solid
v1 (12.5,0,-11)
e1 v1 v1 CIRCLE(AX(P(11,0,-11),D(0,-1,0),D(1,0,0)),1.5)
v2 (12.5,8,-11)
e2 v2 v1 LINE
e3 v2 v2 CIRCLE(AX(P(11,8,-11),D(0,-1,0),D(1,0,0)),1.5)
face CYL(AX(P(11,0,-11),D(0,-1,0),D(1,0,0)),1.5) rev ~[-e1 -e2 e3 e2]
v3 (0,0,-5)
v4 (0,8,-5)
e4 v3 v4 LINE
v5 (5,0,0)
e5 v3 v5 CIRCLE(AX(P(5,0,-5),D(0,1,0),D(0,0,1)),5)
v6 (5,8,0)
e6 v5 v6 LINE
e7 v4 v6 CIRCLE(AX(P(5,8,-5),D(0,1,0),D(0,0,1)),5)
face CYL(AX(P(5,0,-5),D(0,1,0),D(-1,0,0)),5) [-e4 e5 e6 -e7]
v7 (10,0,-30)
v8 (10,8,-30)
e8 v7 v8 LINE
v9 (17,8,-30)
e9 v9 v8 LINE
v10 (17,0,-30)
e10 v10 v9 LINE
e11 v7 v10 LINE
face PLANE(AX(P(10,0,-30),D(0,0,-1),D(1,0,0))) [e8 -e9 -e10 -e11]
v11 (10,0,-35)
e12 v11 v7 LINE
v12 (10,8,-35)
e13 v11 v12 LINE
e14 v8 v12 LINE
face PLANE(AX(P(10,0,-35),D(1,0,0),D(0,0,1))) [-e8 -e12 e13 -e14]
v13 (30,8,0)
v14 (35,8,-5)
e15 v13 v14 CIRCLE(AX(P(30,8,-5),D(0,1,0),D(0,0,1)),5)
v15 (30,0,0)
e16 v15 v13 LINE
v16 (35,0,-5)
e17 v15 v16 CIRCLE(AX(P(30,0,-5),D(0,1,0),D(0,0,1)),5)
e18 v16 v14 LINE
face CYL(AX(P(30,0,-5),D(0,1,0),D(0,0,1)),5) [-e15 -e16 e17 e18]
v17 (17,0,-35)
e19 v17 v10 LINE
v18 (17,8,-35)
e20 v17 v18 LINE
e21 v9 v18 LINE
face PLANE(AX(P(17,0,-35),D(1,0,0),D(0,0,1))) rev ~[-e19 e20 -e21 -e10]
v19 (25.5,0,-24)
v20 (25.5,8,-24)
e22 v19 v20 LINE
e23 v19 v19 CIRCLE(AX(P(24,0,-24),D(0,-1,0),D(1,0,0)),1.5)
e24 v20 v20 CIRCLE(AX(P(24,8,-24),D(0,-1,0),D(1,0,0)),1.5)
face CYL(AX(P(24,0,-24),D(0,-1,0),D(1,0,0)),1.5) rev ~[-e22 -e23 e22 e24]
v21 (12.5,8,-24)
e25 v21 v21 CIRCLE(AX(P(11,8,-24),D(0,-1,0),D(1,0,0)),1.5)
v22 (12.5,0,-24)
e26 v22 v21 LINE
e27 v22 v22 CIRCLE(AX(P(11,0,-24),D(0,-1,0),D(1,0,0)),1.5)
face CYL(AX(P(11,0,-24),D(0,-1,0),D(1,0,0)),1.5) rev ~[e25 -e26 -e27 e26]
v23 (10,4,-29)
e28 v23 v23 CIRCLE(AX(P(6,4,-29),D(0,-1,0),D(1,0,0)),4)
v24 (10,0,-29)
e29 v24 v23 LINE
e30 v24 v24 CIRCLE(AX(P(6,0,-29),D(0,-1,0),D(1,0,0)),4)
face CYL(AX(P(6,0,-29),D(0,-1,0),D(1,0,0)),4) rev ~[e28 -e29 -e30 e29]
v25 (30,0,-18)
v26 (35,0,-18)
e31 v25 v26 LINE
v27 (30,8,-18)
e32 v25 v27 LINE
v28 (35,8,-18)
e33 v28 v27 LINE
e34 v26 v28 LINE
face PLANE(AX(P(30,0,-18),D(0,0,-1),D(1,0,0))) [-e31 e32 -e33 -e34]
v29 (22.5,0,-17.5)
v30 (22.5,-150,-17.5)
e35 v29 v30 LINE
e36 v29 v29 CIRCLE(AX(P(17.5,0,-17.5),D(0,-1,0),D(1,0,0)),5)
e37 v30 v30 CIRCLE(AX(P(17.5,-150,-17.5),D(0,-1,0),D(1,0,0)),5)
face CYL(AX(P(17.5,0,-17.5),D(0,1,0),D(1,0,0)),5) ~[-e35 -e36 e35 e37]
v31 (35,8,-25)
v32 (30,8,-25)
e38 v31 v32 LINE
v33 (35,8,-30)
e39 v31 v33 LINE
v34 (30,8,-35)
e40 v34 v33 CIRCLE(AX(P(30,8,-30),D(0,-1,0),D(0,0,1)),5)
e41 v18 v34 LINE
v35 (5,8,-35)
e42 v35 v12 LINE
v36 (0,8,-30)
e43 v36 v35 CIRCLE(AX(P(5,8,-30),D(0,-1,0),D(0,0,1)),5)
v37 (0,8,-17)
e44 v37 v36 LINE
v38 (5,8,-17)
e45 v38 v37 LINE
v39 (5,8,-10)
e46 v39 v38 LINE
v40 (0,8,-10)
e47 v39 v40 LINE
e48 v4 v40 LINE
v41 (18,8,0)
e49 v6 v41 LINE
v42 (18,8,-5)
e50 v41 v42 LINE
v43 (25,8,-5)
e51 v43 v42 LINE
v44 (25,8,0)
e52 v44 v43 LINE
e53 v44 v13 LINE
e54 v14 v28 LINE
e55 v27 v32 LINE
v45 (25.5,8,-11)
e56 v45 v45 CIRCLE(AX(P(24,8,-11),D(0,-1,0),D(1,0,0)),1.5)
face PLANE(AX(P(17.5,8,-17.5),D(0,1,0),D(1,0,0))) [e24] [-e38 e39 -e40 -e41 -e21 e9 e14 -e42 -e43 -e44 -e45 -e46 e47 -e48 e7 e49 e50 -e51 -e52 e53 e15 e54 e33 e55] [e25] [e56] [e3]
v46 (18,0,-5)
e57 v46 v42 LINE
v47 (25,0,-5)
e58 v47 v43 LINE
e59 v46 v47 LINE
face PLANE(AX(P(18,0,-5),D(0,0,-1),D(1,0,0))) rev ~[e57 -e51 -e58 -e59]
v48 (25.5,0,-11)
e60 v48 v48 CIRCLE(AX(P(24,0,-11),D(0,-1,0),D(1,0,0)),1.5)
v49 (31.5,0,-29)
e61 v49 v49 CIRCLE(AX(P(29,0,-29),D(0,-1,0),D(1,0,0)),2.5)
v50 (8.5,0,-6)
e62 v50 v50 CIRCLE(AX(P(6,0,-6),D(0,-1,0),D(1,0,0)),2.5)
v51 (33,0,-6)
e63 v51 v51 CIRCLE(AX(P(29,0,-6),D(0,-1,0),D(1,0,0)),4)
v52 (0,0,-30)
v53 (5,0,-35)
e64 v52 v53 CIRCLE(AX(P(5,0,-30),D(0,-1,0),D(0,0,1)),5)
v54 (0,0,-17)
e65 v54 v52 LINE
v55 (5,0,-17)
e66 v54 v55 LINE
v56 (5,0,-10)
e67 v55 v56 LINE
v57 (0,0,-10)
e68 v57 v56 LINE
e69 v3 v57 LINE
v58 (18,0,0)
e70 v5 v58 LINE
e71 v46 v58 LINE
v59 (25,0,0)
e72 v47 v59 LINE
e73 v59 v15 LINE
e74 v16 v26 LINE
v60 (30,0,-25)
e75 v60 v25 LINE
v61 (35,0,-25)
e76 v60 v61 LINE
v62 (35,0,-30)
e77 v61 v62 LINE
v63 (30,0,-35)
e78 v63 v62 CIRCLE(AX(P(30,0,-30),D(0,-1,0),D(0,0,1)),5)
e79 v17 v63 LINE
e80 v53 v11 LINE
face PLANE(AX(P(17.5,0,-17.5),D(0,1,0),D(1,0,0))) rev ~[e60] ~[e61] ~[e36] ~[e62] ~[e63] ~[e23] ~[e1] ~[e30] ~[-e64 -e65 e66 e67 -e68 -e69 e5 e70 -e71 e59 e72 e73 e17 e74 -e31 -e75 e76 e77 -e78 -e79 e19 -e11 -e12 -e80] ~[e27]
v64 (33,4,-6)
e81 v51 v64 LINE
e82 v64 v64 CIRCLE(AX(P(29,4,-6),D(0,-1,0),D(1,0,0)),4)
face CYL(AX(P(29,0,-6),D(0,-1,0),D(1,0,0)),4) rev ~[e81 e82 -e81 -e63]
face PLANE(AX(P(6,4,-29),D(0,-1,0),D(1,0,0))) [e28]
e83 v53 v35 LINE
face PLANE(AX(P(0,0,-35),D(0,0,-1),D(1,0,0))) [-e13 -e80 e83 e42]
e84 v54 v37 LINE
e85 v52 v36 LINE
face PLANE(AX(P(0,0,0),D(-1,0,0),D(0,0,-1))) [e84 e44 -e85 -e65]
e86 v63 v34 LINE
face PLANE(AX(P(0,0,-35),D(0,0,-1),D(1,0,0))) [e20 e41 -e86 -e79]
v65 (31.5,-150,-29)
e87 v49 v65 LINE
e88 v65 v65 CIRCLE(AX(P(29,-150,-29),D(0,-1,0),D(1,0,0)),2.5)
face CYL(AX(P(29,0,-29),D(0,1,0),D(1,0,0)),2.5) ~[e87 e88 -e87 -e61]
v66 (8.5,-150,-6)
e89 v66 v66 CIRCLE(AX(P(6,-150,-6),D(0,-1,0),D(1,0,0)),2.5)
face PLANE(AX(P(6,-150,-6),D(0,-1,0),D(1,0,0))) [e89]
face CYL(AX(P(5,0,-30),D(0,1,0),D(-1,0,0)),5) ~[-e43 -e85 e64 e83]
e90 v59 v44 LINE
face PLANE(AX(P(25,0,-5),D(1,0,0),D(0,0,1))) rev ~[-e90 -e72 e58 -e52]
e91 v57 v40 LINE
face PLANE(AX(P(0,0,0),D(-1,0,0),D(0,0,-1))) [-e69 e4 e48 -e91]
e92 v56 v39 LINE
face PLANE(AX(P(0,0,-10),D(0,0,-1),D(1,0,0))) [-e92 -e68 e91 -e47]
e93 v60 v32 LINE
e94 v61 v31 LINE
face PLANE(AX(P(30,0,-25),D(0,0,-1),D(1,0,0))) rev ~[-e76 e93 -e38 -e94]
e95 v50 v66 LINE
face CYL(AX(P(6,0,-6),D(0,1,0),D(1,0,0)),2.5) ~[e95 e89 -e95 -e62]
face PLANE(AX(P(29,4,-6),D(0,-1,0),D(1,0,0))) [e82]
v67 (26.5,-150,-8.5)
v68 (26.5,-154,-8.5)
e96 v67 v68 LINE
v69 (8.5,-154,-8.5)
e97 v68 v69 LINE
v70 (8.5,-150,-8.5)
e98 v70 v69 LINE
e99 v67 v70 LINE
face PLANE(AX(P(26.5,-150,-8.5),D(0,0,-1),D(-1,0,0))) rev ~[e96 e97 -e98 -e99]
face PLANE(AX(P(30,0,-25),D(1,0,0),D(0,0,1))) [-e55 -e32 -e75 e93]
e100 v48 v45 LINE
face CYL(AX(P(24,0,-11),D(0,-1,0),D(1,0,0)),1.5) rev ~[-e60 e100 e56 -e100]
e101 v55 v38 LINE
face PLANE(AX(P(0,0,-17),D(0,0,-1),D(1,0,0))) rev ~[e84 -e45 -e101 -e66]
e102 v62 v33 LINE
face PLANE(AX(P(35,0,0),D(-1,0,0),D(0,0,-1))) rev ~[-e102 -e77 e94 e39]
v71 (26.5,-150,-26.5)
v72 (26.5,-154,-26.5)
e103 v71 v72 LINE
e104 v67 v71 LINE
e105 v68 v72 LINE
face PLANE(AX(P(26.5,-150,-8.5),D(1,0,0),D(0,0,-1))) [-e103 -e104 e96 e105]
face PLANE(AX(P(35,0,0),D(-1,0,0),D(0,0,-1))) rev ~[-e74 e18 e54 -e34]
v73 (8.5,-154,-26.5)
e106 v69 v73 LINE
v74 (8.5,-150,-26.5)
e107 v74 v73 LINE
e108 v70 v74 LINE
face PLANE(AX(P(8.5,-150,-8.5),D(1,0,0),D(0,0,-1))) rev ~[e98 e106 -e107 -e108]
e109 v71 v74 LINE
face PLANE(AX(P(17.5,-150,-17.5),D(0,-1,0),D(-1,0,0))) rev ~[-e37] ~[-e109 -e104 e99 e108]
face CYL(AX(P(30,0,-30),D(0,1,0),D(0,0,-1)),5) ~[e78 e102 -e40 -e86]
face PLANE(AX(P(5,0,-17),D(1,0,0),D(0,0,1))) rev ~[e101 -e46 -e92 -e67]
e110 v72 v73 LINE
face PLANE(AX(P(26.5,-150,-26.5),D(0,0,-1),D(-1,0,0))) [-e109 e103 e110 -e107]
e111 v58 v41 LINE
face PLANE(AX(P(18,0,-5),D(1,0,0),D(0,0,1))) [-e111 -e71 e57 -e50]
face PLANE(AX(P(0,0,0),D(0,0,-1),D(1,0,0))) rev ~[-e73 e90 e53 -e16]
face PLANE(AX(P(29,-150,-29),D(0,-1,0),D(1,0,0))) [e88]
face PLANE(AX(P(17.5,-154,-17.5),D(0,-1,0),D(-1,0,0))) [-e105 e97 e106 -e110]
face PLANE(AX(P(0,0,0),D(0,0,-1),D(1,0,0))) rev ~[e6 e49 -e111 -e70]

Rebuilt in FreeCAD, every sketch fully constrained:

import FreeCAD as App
import Part
import Sketcher


def edges_at(feature, points):
    """Names of the edges that pass closest to the given points."""
    edges = feature.Shape.Edges
    near = lambda p: min(range(len(edges)), key=lambda i: edges[i].distToShape(Part.Vertex(*p))[0])
    return sorted({f"Edge{near(p) + 1}" for p in points})

doc = App.newDocument("Part")
params = doc.addObject("Spreadsheet::Sheet", "Params")
for row, (alias, value) in enumerate([
    ("sketch1_width", "35 mm"),
    ("pad1_length", "8 mm"),
    ("sketch2_diameter", "3 mm"),
    ("sketch2_width", "5 mm"),
    ("sketch2_width2", "7 mm"),
    ("sketch3_diameter", "8 mm"),
    ("sketch3_diameter2", "3 mm"),
    ("pocket2_length", "4 mm"),
    ("sketch4_diameter", "10 mm"),
    ("sketch4_diameter2", "5 mm"),
    ("pad2_length", "150 mm"),
    ("sketch5_width", "18 mm"),
    ("pad3_length", "4 mm"),
    ("fillet_radius", "5 mm"),
], start=1):
    params.set(f"A{row}", alias)
    params.set(f"B{row}", "=" + value)
    params.setAlias(f"B{row}", alias)

body = doc.addObject("PartDesign::Body", "Body")

# Sketch on XZ plane
sketch1 = body.newObject("Sketcher::SketchObject", "Sketch")
sketch1.AttachmentSupport = (doc.getObject("XZ_Plane"), [""])
sketch1.MapMode = "FlatFace"
sketch1.addGeometry(Part.LineSegment(App.Vector(0, -35, 0), App.Vector(0, 0, 0)), False)
sketch1.addGeometry(Part.LineSegment(App.Vector(0, 0, 0), App.Vector(35, 0, 0)), False)
sketch1.addGeometry(Part.LineSegment(App.Vector(35, 0, 0), App.Vector(35, -35, 0)), False)
sketch1.addGeometry(Part.LineSegment(App.Vector(35, -35, 0), App.Vector(0, -35, 0)), False)
sketch1.addConstraint(Sketcher.Constraint("Coincident", 0, 2, 1, 1))
sketch1.addConstraint(Sketcher.Constraint("Coincident", 1, 2, 2, 1))
sketch1.addConstraint(Sketcher.Constraint("Coincident", 2, 2, 3, 1))
sketch1.addConstraint(Sketcher.Constraint("Coincident", 3, 2, 0, 1))
sketch1.addConstraint(Sketcher.Constraint("Vertical", 0))
sketch1.addConstraint(Sketcher.Constraint("Horizontal", 1))
sketch1.addConstraint(Sketcher.Constraint("Vertical", 2))
sketch1.addConstraint(Sketcher.Constraint("Horizontal", 3))
sketch1.addConstraint(Sketcher.Constraint("Coincident", 0, 2, -1, 1))
sketch1.addConstraint(Sketcher.Constraint("Equal", 3, 0))
sketch1.addConstraint(Sketcher.Constraint("DistanceX", 1, 1, 1, 2, 35.0))
sketch1.setExpression("Constraints[10]", "Params.sketch1_width")
pad1 = body.newObject("PartDesign::Pad", "Pad")
pad1.Profile = sketch1
pad1.setExpression("Length", "Params.pad1_length")
pad1.Reversed = True

# Sketch on XZ plane
sketch2 = body.newObject("Sketcher::SketchObject", "Sketch001")
sketch2.AttachmentSupport = (doc.getObject("XZ_Plane"), [""])
sketch2.MapMode = "FlatFace"
sketch2.addGeometry(Part.LineSegment(App.Vector(30, -18, 0), App.Vector(30, -25, 0)), False)
sketch2.addGeometry(Part.LineSegment(App.Vector(30, -25, 0), App.Vector(35, -25, 0)), False)
sketch2.addGeometry(Part.LineSegment(App.Vector(35, -25, 0), App.Vector(35, -18, 0)), False)
sketch2.addGeometry(Part.LineSegment(App.Vector(35, -18, 0), App.Vector(30, -18, 0)), False)
sketch2.addGeometry(Part.LineSegment(App.Vector(10, -30, 0), App.Vector(10, -35, 0)), False)
sketch2.addGeometry(Part.LineSegment(App.Vector(10, -35, 0), App.Vector(17, -35, 0)), False)
sketch2.addGeometry(Part.LineSegment(App.Vector(17, -35, 0), App.Vector(17, -30, 0)), False)
sketch2.addGeometry(Part.LineSegment(App.Vector(17, -30, 0), App.Vector(10, -30, 0)), False)
sketch2.addGeometry(Part.LineSegment(App.Vector(0, -10, 0), App.Vector(0, -17, 0)), False)
sketch2.addGeometry(Part.LineSegment(App.Vector(0, -17, 0), App.Vector(5, -17, 0)), False)
sketch2.addGeometry(Part.LineSegment(App.Vector(5, -17, 0), App.Vector(5, -10, 0)), False)
sketch2.addGeometry(Part.LineSegment(App.Vector(5, -10, 0), App.Vector(0, -10, 0)), False)
sketch2.addGeometry(Part.LineSegment(App.Vector(18, 0, 0), App.Vector(18, -5, 0)), False)
sketch2.addGeometry(Part.LineSegment(App.Vector(18, -5, 0), App.Vector(25, -5, 0)), False)
sketch2.addGeometry(Part.LineSegment(App.Vector(25, -5, 0), App.Vector(25, 0, 0)), False)
sketch2.addGeometry(Part.LineSegment(App.Vector(25, 0, 0), App.Vector(18, 0, 0)), False)
sketch2.addGeometry(Part.Circle(App.Vector(11, -11, 0), App.Vector(0, 0, 1), 1.5), False)
sketch2.addGeometry(Part.Circle(App.Vector(24, -11, 0), App.Vector(0, 0, 1), 1.5), False)
sketch2.addGeometry(Part.Circle(App.Vector(11, -24, 0), App.Vector(0, 0, 1), 1.5), False)
sketch2.addGeometry(Part.Circle(App.Vector(24, -24, 0), App.Vector(0, 0, 1), 1.5), False)
sketch2.addConstraint(Sketcher.Constraint("Coincident", 0, 2, 1, 1))
sketch2.addConstraint(Sketcher.Constraint("Coincident", 1, 2, 2, 1))
sketch2.addConstraint(Sketcher.Constraint("Coincident", 2, 2, 3, 1))
sketch2.addConstraint(Sketcher.Constraint("Coincident", 3, 2, 0, 1))
sketch2.addConstraint(Sketcher.Constraint("Coincident", 4, 2, 5, 1))
sketch2.addConstraint(Sketcher.Constraint("Coincident", 5, 2, 6, 1))
sketch2.addConstraint(Sketcher.Constraint("Coincident", 6, 2, 7, 1))
sketch2.addConstraint(Sketcher.Constraint("Coincident", 7, 2, 4, 1))
sketch2.addConstraint(Sketcher.Constraint("Coincident", 8, 2, 9, 1))
sketch2.addConstraint(Sketcher.Constraint("Coincident", 9, 2, 10, 1))
sketch2.addConstraint(Sketcher.Constraint("Coincident", 10, 2, 11, 1))
sketch2.addConstraint(Sketcher.Constraint("Coincident", 11, 2, 8, 1))
sketch2.addConstraint(Sketcher.Constraint("Coincident", 12, 2, 13, 1))
sketch2.addConstraint(Sketcher.Constraint("Coincident", 13, 2, 14, 1))
sketch2.addConstraint(Sketcher.Constraint("Coincident", 14, 2, 15, 1))
sketch2.addConstraint(Sketcher.Constraint("Coincident", 15, 2, 12, 1))
sketch2.addConstraint(Sketcher.Constraint("Vertical", 0))
sketch2.addConstraint(Sketcher.Constraint("Horizontal", 1))
sketch2.addConstraint(Sketcher.Constraint("Vertical", 2))
sketch2.addConstraint(Sketcher.Constraint("Horizontal", 3))
sketch2.addConstraint(Sketcher.Constraint("Vertical", 4))
sketch2.addConstraint(Sketcher.Constraint("Horizontal", 5))
sketch2.addConstraint(Sketcher.Constraint("Vertical", 6))
sketch2.addConstraint(Sketcher.Constraint("Horizontal", 7))
sketch2.addConstraint(Sketcher.Constraint("Vertical", 8))
sketch2.addConstraint(Sketcher.Constraint("Horizontal", 9))
sketch2.addConstraint(Sketcher.Constraint("Vertical", 10))
sketch2.addConstraint(Sketcher.Constraint("Horizontal", 11))
sketch2.addConstraint(Sketcher.Constraint("Vertical", 12))
sketch2.addConstraint(Sketcher.Constraint("Horizontal", 13))
sketch2.addConstraint(Sketcher.Constraint("Vertical", 14))
sketch2.addConstraint(Sketcher.Constraint("Horizontal", 15))
sketch2.addConstraint(Sketcher.Constraint("Equal", 16, 17))
sketch2.addConstraint(Sketcher.Constraint("Equal", 17, 18))
sketch2.addConstraint(Sketcher.Constraint("Equal", 18, 19))
sketch2.addConstraint(Sketcher.Constraint("PointOnObject", 8, 2, -2))
sketch2.addConstraint(Sketcher.Constraint("PointOnObject", 14, 2, -1))
sketch2.addConstraint(Sketcher.Constraint("Horizontal", 16, 3, 17, 3))
sketch2.addConstraint(Sketcher.Constraint("Horizontal", 18, 3, 19, 3))
sketch2.addConstraint(Sketcher.Constraint("Vertical", 16, 3, 18, 3))
sketch2.addConstraint(Sketcher.Constraint("Vertical", 17, 3, 19, 3))
sketch2.addConstraint(Sketcher.Constraint("Equal", 3, 9))
sketch2.addConstraint(Sketcher.Constraint("Equal", 7, 13))
sketch2.addConstraint(Sketcher.Constraint("Equal", 15, 0))
sketch2.addConstraint(Sketcher.Constraint("Equal", 11, 4))
sketch2.addConstraint(Sketcher.Constraint("Equal", 2, 8))
sketch2.addConstraint(Sketcher.Constraint("Equal", 6, 12))
sketch2.addConstraint(Sketcher.Constraint("Diameter", 16, 3.0))
sketch2.addConstraint(Sketcher.Constraint("DistanceX", 1, 1, 1, 2, 5.0))
sketch2.addConstraint(Sketcher.Constraint("DistanceX", 5, 1, 5, 2, 7.0))
sketch2.addConstraint(Sketcher.Constraint("DistanceX", -1, 1, 16, 3, 11.0))
sketch2.addConstraint(Sketcher.Constraint("DistanceY", 16, 3, -1, 1, 11.0))
sketch2.addConstraint(Sketcher.Constraint("DistanceX", -1, 1, 17, 3, 24.0))
sketch2.addConstraint(Sketcher.Constraint("DistanceY", 18, 3, -1, 1, 24.0))
sketch2.addConstraint(Sketcher.Constraint("DistanceX", -1, 1, 0, 2, 30.0))
sketch2.addConstraint(Sketcher.Constraint("DistanceY", 0, 2, -1, 1, 25.0))
sketch2.addConstraint(Sketcher.Constraint("DistanceX", -1, 1, 4, 2, 10.0))
sketch2.addConstraint(Sketcher.Constraint("DistanceY", 4, 2, -1, 1, 35.0))
sketch2.addConstraint(Sketcher.Constraint("DistanceY", 8, 2, -1, 1, 17.0))
sketch2.addConstraint(Sketcher.Constraint("DistanceX", -1, 1, 12, 2, 18.0))
sketch2.setExpression("Constraints[47]", "Params.sketch2_diameter")
sketch2.setExpression("Constraints[48]", "Params.sketch2_width")
sketch2.setExpression("Constraints[49]", "Params.sketch2_width2")
pocket1 = body.newObject("PartDesign::Pocket", "Pocket")
pocket1.Profile = sketch2
pocket1.Type = "ThroughAll"

# Sketch on XZ plane
sketch3 = body.newObject("Sketcher::SketchObject", "Sketch002")
sketch3.AttachmentSupport = (doc.getObject("XZ_Plane"), [""])
sketch3.MapMode = "FlatFace"
sketch3.addGeometry(Part.Circle(App.Vector(6, -29, 0), App.Vector(0, 0, 1), 4), False)
sketch3.addGeometry(Part.Circle(App.Vector(29, -6, 0), App.Vector(0, 0, 1), 4), False)
sketch3.addGeometry(Part.Circle(App.Vector(11, -11, 0), App.Vector(0, 0, 1), 1.5), False)
sketch3.addConstraint(Sketcher.Constraint("Equal", 0, 1))
sketch3.addConstraint(Sketcher.Constraint("Diameter", 0, 8.0))
sketch3.addConstraint(Sketcher.Constraint("Diameter", 2, 3.0))
sketch3.addConstraint(Sketcher.Constraint("DistanceX", -1, 1, 0, 3, 6.0))
sketch3.addConstraint(Sketcher.Constraint("DistanceY", 0, 3, -1, 1, 29.0))
sketch3.addConstraint(Sketcher.Constraint("DistanceX", -1, 1, 1, 3, 29.0))
sketch3.addConstraint(Sketcher.Constraint("DistanceY", 1, 3, -1, 1, 6.0))
sketch3.addConstraint(Sketcher.Constraint("DistanceX", -1, 1, 2, 3, 11.0))
sketch3.addConstraint(Sketcher.Constraint("DistanceY", 2, 3, -1, 1, 11.0))
sketch3.setExpression("Constraints[1]", "Params.sketch3_diameter")
sketch3.setExpression("Constraints[2]", "Params.sketch3_diameter2")
pocket2 = body.newObject("PartDesign::Pocket", "Pocket001")
pocket2.Profile = sketch3
pocket2.setExpression("Length", "Params.pocket2_length")

# Sketch on XZ plane
sketch4 = body.newObject("Sketcher::SketchObject", "Sketch003")
sketch4.AttachmentSupport = (doc.getObject("XZ_Plane"), [""])
sketch4.MapMode = "FlatFace"
sketch4.addGeometry(Part.Circle(App.Vector(17.5, -17.5, 0), App.Vector(0, 0, 1), 5), False)
sketch4.addGeometry(Part.Circle(App.Vector(29, -29, 0), App.Vector(0, 0, 1), 2.5), False)
sketch4.addGeometry(Part.Circle(App.Vector(6, -6, 0), App.Vector(0, 0, 1), 2.5), False)
sketch4.addConstraint(Sketcher.Constraint("Equal", 1, 2))
sketch4.addConstraint(Sketcher.Constraint("Diameter", 0, 10.0))
sketch4.addConstraint(Sketcher.Constraint("Diameter", 1, 5.0))
sketch4.addConstraint(Sketcher.Constraint("DistanceX", -1, 1, 1, 3, 29.0))
sketch4.addConstraint(Sketcher.Constraint("DistanceY", 1, 3, -1, 1, 29.0))
sketch4.addConstraint(Sketcher.Constraint("DistanceX", -1, 1, 2, 3, 6.0))
sketch4.addConstraint(Sketcher.Constraint("DistanceY", 2, 3, -1, 1, 6.0))
sketch4.addConstraint(Sketcher.Constraint("DistanceX", -1, 1, 0, 3, 17.5))
sketch4.addConstraint(Sketcher.Constraint("DistanceY", 0, 3, -1, 1, 17.5))
sketch4.setExpression("Constraints[1]", "Params.sketch4_diameter")
sketch4.setExpression("Constraints[2]", "Params.sketch4_diameter2")
pad2 = body.newObject("PartDesign::Pad", "Pad001")
pad2.Profile = sketch4
pad2.setExpression("Length", "Params.pad2_length")

# Sketch on XZ plane
sketch5 = body.newObject("Sketcher::SketchObject", "Sketch004")
sketch5.AttachmentSupport = (doc.getObject("XZ_Plane"), [""])
sketch5.MapMode = "FlatFace"
sketch5.AttachmentOffset = App.Placement(App.Vector(0, 0, 150), App.Rotation())
sketch5.addGeometry(Part.LineSegment(App.Vector(26, -26, 0), App.Vector(26, -8, 0)), False)
sketch5.addGeometry(Part.LineSegment(App.Vector(26, -8, 0), App.Vector(8, -8, 0)), False)
sketch5.addGeometry(Part.LineSegment(App.Vector(8, -8, 0), App.Vector(8, -26, 0)), False)
sketch5.addGeometry(Part.LineSegment(App.Vector(8, -26, 0), App.Vector(26, -26, 0)), False)
sketch5.addConstraint(Sketcher.Constraint("Coincident", 0, 2, 1, 1))
sketch5.addConstraint(Sketcher.Constraint("Coincident", 1, 2, 2, 1))
sketch5.addConstraint(Sketcher.Constraint("Coincident", 2, 2, 3, 1))
sketch5.addConstraint(Sketcher.Constraint("Coincident", 3, 2, 0, 1))
sketch5.addConstraint(Sketcher.Constraint("Vertical", 0))
sketch5.addConstraint(Sketcher.Constraint("Horizontal", 1))
sketch5.addConstraint(Sketcher.Constraint("Vertical", 2))
sketch5.addConstraint(Sketcher.Constraint("Horizontal", 3))
sketch5.addConstraint(Sketcher.Constraint("Equal", 3, 0))
sketch5.addConstraint(Sketcher.Constraint("DistanceX", 1, 2, 1, 1, 18.0))
sketch5.addConstraint(Sketcher.Constraint("DistanceX", -1, 1, 0, 2, 26.5))
sketch5.addConstraint(Sketcher.Constraint("DistanceY", 0, 2, -1, 1, 8.5))
sketch5.setExpression("Constraints[9]", "Params.sketch5_width")
pad3 = body.newObject("PartDesign::Pad", "Pad002")
pad3.Profile = sketch5
pad3.setExpression("Length", "Params.pad3_length")
doc.recompute()

fillet = body.newObject("PartDesign::Fillet", "Fillet")
fillet.Base = (pad3, edges_at(pad3, [
    (0, 4, -35),
    (35, 4, -35),
    (35, 4, 0),
    (0, 4, 0),
]))
fillet.setExpression("Radius", "Params.fillet_radius")

doc.recompute()
